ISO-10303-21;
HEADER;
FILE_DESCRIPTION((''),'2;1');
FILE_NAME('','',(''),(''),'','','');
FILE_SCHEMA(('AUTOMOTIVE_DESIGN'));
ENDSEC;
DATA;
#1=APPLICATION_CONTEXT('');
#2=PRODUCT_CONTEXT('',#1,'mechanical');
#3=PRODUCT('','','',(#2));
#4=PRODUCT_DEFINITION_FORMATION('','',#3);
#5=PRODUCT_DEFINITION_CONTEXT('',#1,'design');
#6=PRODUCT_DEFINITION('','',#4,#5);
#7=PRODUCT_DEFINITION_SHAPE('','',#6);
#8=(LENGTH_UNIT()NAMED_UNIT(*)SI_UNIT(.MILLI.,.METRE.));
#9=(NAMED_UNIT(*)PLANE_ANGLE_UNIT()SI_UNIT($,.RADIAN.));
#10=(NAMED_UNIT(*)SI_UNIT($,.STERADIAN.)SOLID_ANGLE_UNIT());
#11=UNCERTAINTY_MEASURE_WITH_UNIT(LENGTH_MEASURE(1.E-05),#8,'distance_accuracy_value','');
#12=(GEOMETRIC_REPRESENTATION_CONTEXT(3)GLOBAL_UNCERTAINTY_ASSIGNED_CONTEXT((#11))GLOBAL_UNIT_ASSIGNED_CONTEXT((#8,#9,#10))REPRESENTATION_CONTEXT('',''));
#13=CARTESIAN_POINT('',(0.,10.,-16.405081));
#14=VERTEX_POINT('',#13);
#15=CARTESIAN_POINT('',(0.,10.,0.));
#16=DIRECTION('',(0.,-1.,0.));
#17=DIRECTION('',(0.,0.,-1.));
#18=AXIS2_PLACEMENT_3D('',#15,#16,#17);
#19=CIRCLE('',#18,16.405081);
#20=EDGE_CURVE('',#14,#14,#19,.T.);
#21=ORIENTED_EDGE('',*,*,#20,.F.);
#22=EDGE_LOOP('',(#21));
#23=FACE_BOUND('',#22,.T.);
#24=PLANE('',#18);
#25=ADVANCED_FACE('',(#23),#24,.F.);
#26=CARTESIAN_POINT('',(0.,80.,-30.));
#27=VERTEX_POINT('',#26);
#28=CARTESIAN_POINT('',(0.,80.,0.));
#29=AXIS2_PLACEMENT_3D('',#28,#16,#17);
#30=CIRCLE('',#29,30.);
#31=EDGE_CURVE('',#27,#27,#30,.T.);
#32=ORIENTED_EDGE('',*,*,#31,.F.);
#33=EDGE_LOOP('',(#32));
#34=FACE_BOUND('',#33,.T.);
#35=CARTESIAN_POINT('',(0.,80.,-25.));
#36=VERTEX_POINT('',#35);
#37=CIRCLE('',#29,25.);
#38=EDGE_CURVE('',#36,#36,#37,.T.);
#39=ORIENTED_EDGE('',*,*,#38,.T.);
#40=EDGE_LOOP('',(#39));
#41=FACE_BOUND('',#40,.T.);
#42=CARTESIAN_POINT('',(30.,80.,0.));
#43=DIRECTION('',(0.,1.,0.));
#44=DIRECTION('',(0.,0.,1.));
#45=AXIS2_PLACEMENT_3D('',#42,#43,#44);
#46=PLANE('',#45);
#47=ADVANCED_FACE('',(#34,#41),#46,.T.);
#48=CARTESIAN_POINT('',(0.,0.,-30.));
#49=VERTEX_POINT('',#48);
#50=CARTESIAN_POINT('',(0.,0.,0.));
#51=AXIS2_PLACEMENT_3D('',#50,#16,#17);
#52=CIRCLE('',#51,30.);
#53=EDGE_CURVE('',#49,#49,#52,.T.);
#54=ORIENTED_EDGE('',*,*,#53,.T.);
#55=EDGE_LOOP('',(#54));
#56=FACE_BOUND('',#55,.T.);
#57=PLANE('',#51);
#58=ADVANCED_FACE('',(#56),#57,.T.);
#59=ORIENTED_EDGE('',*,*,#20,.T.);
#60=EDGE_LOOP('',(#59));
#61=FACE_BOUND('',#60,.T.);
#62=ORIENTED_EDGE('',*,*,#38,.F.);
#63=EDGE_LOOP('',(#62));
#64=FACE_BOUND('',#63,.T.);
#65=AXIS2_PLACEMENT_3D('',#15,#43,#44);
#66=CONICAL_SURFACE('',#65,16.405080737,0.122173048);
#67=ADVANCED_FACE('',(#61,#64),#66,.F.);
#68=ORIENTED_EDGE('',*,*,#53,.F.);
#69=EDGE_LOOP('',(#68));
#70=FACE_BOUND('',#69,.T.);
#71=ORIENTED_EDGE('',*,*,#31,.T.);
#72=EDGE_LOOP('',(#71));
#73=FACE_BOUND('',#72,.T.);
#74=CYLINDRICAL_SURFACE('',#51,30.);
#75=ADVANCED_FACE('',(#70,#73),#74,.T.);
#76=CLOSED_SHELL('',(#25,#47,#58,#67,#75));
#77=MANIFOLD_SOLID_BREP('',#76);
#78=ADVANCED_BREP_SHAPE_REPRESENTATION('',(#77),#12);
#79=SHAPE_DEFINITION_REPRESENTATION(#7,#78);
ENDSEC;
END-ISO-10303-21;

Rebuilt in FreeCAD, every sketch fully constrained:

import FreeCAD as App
import Part
import Sketcher
Q = App.Units.Quantity


def add_polygon(sketch, points):
    """Adds a closed chain of lines whose ends are joined by coincident constraints."""
    first, n = sketch.GeometryCount, len(points)
    for a, b in zip(points, points[1:] + points[:1]):
        sketch.addGeometry(Part.LineSegment(App.Vector(*a, 0), App.Vector(*b, 0)), False)
    for i in range(n):
        sketch.addConstraint(Sketcher.Constraint("Coincident", first + i, 2, first + (i + 1) % n, 1))

doc = App.newDocument("Part")
body = doc.addObject("PartDesign::Body", "Body")

sketch1 = body.newObject("Sketcher::SketchObject", "Sketch")
sketch1.AttachmentSupport = (doc.getObject("XY_Plane"), [""])
sketch1.MapMode = "FlatFace"
add_polygon(sketch1, [(0, 80), (0, 0), (30, 0), (30, 80)])
sketch1.addConstraint(Sketcher.Constraint("Vertical", 0))
sketch1.addConstraint(Sketcher.Constraint("Horizontal", 1))
sketch1.addConstraint(Sketcher.Constraint("Vertical", 2))
sketch1.addConstraint(Sketcher.Constraint("Horizontal", 3))
sketch1.addConstraint(Sketcher.Constraint("Coincident", 0, 2, -1, 1))
sketch1.addConstraint(Sketcher.Constraint("DistanceX", 1, 1, 1, 2, 30.0))
sketch1.addConstraint(Sketcher.Constraint("DistanceY", 0, 2, 0, 1, 80.0))
revolution = body.newObject("PartDesign::Revolution", "Revolution")
revolution.Profile = sketch1
revolution.ReferenceAxis = (sketch1, ["V_Axis"])
revolution.Angle = 360

sketch2 = body.newObject("Sketcher::SketchObject", "Sketch001")
sketch2.AttachmentSupport = (doc.getObject("XY_Plane"), [""])
sketch2.MapMode = "FlatFace"
add_polygon(sketch2, [(0, 10), (16.405081, 10), (25, 80), (0, 80)])
sketch2.addConstraint(Sketcher.Constraint("Horizontal", 0))
sketch2.addConstraint(Sketcher.Constraint("Horizontal", 2))
sketch2.addConstraint(Sketcher.Constraint("Vertical", 3))
sketch2.addConstraint(Sketcher.Constraint("PointOnObject", 2, 2, -2))
sketch2.addConstraint(Sketcher.Constraint("DistanceX", 2, 2, 2, 1, 25.0))
sketch2.addConstraint(Sketcher.Constraint("DistanceY", 3, 2, 3, 1, 70.0))
sketch2.addConstraint(Sketcher.Constraint("Angle", 1, Q("83 deg")))
sketch2.addConstraint(Sketcher.Constraint("DistanceY", -1, 1, 0, 2, 10.0))
groove = body.newObject("PartDesign::Groove", "Groove")
groove.Profile = sketch2
groove.ReferenceAxis = (sketch2, ["V_Axis"])
groove.Angle = 360

doc.recompute()
